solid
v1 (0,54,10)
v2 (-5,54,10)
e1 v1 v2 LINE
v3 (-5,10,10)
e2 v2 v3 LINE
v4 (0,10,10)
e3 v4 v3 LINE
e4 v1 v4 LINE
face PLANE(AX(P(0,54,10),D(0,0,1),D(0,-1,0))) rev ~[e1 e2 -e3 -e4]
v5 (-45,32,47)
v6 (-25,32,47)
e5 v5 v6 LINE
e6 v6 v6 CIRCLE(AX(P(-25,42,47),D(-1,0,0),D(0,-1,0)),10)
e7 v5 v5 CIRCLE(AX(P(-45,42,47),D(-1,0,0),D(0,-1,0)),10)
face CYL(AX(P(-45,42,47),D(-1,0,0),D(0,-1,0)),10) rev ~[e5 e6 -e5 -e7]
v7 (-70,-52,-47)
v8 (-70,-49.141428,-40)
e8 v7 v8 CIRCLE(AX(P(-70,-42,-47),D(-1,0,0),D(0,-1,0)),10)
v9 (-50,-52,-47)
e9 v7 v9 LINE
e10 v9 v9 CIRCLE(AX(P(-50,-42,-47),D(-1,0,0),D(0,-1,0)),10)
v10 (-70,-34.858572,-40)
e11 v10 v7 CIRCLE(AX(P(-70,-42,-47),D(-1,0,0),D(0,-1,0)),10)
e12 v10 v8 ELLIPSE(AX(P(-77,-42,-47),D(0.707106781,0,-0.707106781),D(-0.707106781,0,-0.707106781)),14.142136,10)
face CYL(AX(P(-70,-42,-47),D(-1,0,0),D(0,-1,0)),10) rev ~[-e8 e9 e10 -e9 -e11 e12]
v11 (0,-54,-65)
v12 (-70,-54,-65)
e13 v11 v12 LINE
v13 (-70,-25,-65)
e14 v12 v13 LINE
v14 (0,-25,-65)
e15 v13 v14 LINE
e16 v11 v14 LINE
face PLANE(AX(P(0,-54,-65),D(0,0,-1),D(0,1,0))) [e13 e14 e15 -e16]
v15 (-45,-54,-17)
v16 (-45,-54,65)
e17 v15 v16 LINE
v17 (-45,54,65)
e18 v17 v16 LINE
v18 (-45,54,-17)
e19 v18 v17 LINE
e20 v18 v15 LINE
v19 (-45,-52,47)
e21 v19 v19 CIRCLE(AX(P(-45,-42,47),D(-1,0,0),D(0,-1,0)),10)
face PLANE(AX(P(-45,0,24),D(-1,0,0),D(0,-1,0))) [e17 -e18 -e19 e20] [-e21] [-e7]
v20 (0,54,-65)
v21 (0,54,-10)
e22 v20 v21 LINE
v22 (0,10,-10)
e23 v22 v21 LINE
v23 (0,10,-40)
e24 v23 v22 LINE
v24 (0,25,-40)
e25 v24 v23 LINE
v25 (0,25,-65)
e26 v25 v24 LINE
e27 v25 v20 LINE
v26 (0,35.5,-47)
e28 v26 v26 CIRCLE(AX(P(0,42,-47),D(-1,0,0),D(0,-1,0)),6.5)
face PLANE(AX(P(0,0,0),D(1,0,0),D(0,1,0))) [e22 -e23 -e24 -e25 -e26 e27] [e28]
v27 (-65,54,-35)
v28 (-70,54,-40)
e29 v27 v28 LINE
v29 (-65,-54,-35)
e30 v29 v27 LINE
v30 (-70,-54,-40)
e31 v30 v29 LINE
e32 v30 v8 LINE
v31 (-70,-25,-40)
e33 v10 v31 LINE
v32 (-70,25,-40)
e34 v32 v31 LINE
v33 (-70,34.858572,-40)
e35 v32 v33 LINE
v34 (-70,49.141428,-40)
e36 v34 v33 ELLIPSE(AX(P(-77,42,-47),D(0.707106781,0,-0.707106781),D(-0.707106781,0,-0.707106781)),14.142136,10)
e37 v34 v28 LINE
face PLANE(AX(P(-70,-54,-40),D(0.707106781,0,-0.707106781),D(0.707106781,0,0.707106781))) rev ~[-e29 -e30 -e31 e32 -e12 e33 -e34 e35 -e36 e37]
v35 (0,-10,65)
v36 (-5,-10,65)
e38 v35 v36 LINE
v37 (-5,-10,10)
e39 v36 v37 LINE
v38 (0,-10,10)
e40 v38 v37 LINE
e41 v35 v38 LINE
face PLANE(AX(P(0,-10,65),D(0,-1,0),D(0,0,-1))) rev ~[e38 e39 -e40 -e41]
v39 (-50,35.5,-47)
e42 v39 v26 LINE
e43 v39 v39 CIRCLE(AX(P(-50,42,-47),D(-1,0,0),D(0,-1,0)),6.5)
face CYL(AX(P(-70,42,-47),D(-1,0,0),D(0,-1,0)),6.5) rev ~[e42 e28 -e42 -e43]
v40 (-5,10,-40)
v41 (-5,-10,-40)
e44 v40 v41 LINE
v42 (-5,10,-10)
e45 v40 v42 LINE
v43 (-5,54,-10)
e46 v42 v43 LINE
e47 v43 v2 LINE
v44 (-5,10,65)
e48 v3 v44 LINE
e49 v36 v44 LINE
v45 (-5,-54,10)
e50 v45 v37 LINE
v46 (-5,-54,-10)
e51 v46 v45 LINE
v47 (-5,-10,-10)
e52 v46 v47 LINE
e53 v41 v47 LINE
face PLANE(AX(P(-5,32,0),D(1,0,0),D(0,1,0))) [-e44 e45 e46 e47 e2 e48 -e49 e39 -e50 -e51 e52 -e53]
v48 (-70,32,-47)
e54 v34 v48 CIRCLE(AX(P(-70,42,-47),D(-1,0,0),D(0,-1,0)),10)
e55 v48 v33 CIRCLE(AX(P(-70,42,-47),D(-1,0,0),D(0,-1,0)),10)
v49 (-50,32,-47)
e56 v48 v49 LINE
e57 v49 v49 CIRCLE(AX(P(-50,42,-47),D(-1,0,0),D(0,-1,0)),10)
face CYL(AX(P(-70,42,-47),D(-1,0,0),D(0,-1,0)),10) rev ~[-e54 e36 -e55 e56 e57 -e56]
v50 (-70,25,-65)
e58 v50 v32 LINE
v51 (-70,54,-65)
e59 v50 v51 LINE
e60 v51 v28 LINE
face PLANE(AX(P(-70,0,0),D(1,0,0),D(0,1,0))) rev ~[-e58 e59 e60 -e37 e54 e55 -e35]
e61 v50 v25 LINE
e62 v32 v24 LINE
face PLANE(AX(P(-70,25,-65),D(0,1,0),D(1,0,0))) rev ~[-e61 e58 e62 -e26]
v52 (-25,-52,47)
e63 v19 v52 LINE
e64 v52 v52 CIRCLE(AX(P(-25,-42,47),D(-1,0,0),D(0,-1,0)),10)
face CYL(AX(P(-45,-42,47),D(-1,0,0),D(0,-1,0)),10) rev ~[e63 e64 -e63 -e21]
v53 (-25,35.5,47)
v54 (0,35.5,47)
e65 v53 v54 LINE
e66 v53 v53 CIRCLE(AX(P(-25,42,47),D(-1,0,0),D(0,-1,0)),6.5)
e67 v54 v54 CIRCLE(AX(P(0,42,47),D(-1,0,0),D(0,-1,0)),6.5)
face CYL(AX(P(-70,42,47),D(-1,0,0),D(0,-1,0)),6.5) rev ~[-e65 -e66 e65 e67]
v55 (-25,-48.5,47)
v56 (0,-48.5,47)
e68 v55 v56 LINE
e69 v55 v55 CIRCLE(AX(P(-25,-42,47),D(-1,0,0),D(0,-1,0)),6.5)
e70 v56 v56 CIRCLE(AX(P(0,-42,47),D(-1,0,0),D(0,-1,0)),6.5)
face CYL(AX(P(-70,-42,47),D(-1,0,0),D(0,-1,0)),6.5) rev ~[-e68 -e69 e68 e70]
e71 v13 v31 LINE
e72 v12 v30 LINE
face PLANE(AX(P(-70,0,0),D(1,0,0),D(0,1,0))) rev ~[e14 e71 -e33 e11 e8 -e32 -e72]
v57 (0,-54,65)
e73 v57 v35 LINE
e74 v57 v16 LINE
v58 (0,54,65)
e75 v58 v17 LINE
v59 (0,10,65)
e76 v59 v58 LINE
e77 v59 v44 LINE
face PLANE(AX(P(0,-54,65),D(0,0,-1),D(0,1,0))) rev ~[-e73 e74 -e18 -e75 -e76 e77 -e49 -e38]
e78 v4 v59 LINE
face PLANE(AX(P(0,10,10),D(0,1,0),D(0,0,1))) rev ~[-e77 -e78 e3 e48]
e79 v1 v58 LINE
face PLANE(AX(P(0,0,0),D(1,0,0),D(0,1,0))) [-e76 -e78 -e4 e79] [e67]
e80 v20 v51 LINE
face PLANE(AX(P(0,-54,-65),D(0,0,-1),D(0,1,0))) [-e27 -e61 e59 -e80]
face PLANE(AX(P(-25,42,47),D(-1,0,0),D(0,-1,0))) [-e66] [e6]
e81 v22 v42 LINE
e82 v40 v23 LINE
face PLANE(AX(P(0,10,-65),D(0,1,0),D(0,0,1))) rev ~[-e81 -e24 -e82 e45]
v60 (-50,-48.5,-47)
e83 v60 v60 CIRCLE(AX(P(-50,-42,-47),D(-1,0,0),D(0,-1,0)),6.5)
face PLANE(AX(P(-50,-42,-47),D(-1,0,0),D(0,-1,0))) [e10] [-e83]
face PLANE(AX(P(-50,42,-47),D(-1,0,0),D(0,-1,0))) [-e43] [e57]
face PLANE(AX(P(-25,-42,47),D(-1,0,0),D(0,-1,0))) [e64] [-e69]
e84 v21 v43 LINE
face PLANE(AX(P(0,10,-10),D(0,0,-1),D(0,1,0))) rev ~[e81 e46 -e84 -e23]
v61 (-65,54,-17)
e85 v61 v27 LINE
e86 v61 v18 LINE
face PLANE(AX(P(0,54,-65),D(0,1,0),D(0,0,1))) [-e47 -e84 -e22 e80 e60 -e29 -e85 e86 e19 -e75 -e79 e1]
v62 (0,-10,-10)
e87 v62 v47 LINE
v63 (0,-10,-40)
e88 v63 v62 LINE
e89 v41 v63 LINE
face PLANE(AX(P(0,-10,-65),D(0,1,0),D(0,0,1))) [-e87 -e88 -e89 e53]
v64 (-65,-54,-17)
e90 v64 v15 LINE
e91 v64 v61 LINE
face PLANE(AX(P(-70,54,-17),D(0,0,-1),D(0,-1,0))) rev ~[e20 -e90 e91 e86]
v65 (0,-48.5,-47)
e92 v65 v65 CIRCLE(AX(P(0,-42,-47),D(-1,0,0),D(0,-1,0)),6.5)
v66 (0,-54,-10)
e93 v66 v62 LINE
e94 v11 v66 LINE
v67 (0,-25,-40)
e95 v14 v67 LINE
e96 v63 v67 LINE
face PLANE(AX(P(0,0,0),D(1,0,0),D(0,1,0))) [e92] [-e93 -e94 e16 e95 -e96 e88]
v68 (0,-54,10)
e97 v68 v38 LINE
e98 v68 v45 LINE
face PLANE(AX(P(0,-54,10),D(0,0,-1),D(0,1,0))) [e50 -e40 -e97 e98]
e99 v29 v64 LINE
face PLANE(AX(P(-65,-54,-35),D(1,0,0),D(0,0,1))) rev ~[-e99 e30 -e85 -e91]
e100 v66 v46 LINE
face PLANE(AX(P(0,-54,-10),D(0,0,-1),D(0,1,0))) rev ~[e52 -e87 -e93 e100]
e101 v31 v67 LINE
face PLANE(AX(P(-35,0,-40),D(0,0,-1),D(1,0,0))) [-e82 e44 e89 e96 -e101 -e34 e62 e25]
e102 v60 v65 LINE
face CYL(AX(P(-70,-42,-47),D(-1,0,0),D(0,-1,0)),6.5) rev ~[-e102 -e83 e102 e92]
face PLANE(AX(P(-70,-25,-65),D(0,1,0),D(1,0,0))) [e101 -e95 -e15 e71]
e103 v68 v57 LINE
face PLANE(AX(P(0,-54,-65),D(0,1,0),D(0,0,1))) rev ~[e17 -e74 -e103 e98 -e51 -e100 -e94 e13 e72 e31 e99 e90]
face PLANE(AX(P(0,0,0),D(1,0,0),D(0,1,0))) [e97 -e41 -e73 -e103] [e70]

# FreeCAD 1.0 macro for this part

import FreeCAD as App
import Part
import Sketcher

doc = App.newDocument("Part")
body = doc.addObject("PartDesign::Body", "Body")

sketch1 = doc.addObject("Sketcher::SketchObject", "Sketch")
body.addObject(sketch1)
sketch1.AttachmentSupport = (doc.YZ_Plane, [""])
sketch1.MapMode = "FlatFace"
sketch1.addGeometry([
    Part.LineSegment(App.Vector(-54, 65, 0), App.Vector(-54, -65, 0)),
    Part.LineSegment(App.Vector(-54, -65, 0), App.Vector(54, -65, 0)),
    Part.LineSegment(App.Vector(54, -65, 0), App.Vector(54, 65, 0)),
    Part.LineSegment(App.Vector(54, 65, 0), App.Vector(-54, 65, 0)),
], False)
sketch1.addConstraint([
    Sketcher.Constraint("Coincident", 0, 2, 1, 1),
    Sketcher.Constraint("Coincident", 1, 2, 2, 1),
    Sketcher.Constraint("Coincident", 2, 2, 3, 1),
    Sketcher.Constraint("Coincident", 3, 2, 0, 1),
    Sketcher.Constraint("Vertical", 0),
    Sketcher.Constraint("Horizontal", 1),
    Sketcher.Constraint("Vertical", 2),
    Sketcher.Constraint("Horizontal", 3),
    Sketcher.Constraint("Symmetric", 0, 2, 2, 2, -1, 1),
    Sketcher.Constraint("DistanceX", 1, 1, 1, 2, 108.0),
    Sketcher.Constraint("DistanceY", 0, 2, 0, 1, 130.0),
])
pad1 = doc.addObject("PartDesign::Pad", "Pad")
body.addObject(pad1)
pad1.Profile = sketch1
pad1.Length = 70
pad1.Reversed = True

sketch2 = doc.addObject("Sketcher::SketchObject", "Sketch001")
body.addObject(sketch2)
sketch2.AttachmentSupport = (doc.YZ_Plane, [""])
sketch2.MapMode = "FlatFace"
sketch2.AttachmentOffset = App.Placement(App.Vector(0, 0, -70), App.Rotation())
sketch2.addGeometry([
    Part.Circle(App.Vector(42, 47, 0), App.Vector(0, 0, 1), 6),
    Part.Circle(App.Vector(-42, 47, 0), App.Vector(0, 0, 1), 6),
    Part.Circle(App.Vector(42, -47, 0), App.Vector(0, 0, 1), 6),
    Part.Circle(App.Vector(-42, -47, 0), App.Vector(0, 0, 1), 6),
], False)
sketch2.addConstraint([
    Sketcher.Constraint("Equal", 0, 1),
    Sketcher.Constraint("Equal", 1, 2),
    Sketcher.Constraint("Equal", 2, 3),
    Sketcher.Constraint("Symmetric", 1, 3, 2, 3, -1, 1),
    Sketcher.Constraint("Symmetric", 0, 3, 3, 3, -1, 1),
    Sketcher.Constraint("Symmetric", 0, 3, 1, 3, -2),
    Sketcher.Constraint("Diameter", 0, 13.0),
    Sketcher.Constraint("DistanceX", -1, 1, 0, 3, 42.0),
    Sketcher.Constraint("DistanceY", -1, 1, 0, 3, 47.0),
])
pocket1 = doc.addObject("PartDesign::Pocket", "Pocket")
body.addObject(pocket1)
pocket1.Profile = sketch2
pocket1.Type = "ThroughAll"
pocket1.Reversed = True

sketch3 = doc.addObject("Sketcher::SketchObject", "Sketch002")
body.addObject(sketch3)
sketch3.AttachmentSupport = (doc.XY_Plane, [""])
sketch3.MapMode = "FlatFace"
sketch3.AttachmentOffset = App.Placement(App.Vector(0, 0, -65), App.Rotation())
sketch3.addGeometry([
    Part.LineSegment(App.Vector(-70, -25, 0), App.Vector(-70, 25, 0)),
    Part.LineSegment(App.Vector(-70, 25, 0), App.Vector(0, 25, 0)),
    Part.LineSegment(App.Vector(0, 25, 0), App.Vector(0, -25, 0)),
    Part.LineSegment(App.Vector(0, -25, 0), App.Vector(-70, -25, 0)),
], False)
sketch3.addConstraint([
    Sketcher.Constraint("Coincident", 0, 2, 1, 1),
    Sketcher.Constraint("Coincident", 1, 2, 2, 1),
    Sketcher.Constraint("Coincident", 2, 2, 3, 1),
    Sketcher.Constraint("Coincident", 3, 2, 0, 1),
    Sketcher.Constraint("Vertical", 0),
    Sketcher.Constraint("Horizontal", 1),
    Sketcher.Constraint("Vertical", 2),
    Sketcher.Constraint("Horizontal", 3),
    Sketcher.Constraint("Symmetric", 1, 2, 2, 2, -1, 1),
    Sketcher.Constraint("DistanceX", 1, 1, 1, 2, 70.0),
    Sketcher.Constraint("DistanceY", 0, 1, 0, 2, 50.0),
])
pocket2 = doc.addObject("PartDesign::Pocket", "Pocket001")
body.addObject(pocket2)
pocket2.Profile = sketch3
pocket2.Length = 25
pocket2.Reversed = True

sketch4 = doc.addObject("Sketcher::SketchObject", "Sketch003")
body.addObject(sketch4)
sketch4.AttachmentSupport = (doc.YZ_Plane, [""])
sketch4.MapMode = "FlatFace"
sketch4.AttachmentOffset = App.Placement(App.Vector(0, 0, -70), App.Rotation())
sketch4.addGeometry([
    Part.LineSegment(App.Vector(54, 65, 0), App.Vector(54, -17, 0)),
    Part.LineSegment(App.Vector(54, -17, 0), App.Vector(-54, -17, 0)),
    Part.LineSegment(App.Vector(-54, -17, 0), App.Vector(-54, 65, 0)),
    Part.LineSegment(App.Vector(-54, 65, 0), App.Vector(54, 65, 0)),
], False)
sketch4.addConstraint([
    Sketcher.Constraint("Coincident", 0, 2, 1, 1),
    Sketcher.Constraint("Coincident", 1, 2, 2, 1),
    Sketcher.Constraint("Coincident", 2, 2, 3, 1),
    Sketcher.Constraint("Coincident", 3, 2, 0, 1),
    Sketcher.Constraint("Vertical", 0),
    Sketcher.Constraint("Horizontal", 1),
    Sketcher.Constraint("Vertical", 2),
    Sketcher.Constraint("Horizontal", 3),
    Sketcher.Constraint("DistanceX", 1, 2, 1, 1, 108.0),
    Sketcher.Constraint("DistanceY", 0, 2, 0, 1, 82.0),
    Sketcher.Constraint("DistanceX", -1, 1, 0, 2, 54.0),
    Sketcher.Constraint("DistanceY", 0, 2, -1, 1, 17.0),
])
pocket3 = doc.addObject("PartDesign::Pocket", "Pocket002")
body.addObject(pocket3)
pocket3.Profile = sketch4
pocket3.Length = 25
pocket3.Reversed = True

sketch5 = doc.addObject("Sketcher::SketchObject", "Sketch004")
body.addObject(sketch5)
sketch5.AttachmentSupport = (doc.XZ_Plane, [""])
sketch5.MapMode = "FlatFace"
sketch5.AttachmentOffset = App.Placement(App.Vector(0, 0, 54), App.Rotation())
sketch5.addGeometry([
    Part.LineSegment(App.Vector(-65, -35, 0), App.Vector(-65, -17, 0)),
    Part.LineSegment(App.Vector(-65, -17, 0), App.Vector(-70, -17, 0)),
    Part.LineSegment(App.Vector(-70, -17, 0), App.Vector(-70, -40, 0)),
    Part.LineSegment(App.Vector(-70, -40, 0), App.Vector(-65, -35, 0)),
], False)
sketch5.addConstraint([
    Sketcher.Constraint("Coincident", 0, 2, 1, 1),
    Sketcher.Constraint("Coincident", 1, 2, 2, 1),
    Sketcher.Constraint("Coincident", 2, 2, 3, 1),
    Sketcher.Constraint("Coincident", 3, 2, 0, 1),
    Sketcher.Constraint("Vertical", 0),
    Sketcher.Constraint("Horizontal", 1),
    Sketcher.Constraint("Vertical", 2),
    Sketcher.Constraint("DistanceX", 1, 2, 1, 1, 5.0),
    Sketcher.Constraint("DistanceY", 0, 1, 0, 2, 18.0),
    Sketcher.Constraint("DistanceY", 2, 2, 2, 1, 23.0),
    Sketcher.Constraint("DistanceX", 0, 2, -1, 1, 65.0),
    Sketcher.Constraint("DistanceY", 0, 2, -1, 1, 17.0),
])
pocket4 = doc.addObject("PartDesign::Pocket", "Pocket003")
body.addObject(pocket4)
pocket4.Profile = sketch5
pocket4.Type = "ThroughAll"

sketch6 = doc.addObject("Sketcher::SketchObject", "Sketch005")
body.addObject(sketch6)
sketch6.AttachmentSupport = (doc.YZ_Plane, [""])
sketch6.MapMode = "FlatFace"
sketch6.AttachmentOffset = App.Placement(App.Vector(0, 0, -70), App.Rotation())
sketch6.addGeometry([
    Part.Circle(App.Vector(42, -47, 0), App.Vector(0, 0, 1), 10),
    Part.Circle(App.Vector(-42, -47, 0), App.Vector(0, 0, 1), 10),
], False)
sketch6.addConstraint([
    Sketcher.Constraint("Equal", 0, 1),
    Sketcher.Constraint("Symmetric", 0, 3, 1, 3, -2),
    Sketcher.Constraint("Diameter", 0, 20.0),
    Sketcher.Constraint("DistanceX", -1, 1, 0, 3, 42.0),
    Sketcher.Constraint("DistanceY", 0, 3, -1, 1, 47.0),
])
pocket5 = doc.addObject("PartDesign::Pocket", "Pocket004")
body.addObject(pocket5)
pocket5.Profile = sketch6
pocket5.Length = 20
pocket5.Reversed = True

sketch7 = doc.addObject("Sketcher::SketchObject", "Sketch006")
body.addObject(sketch7)
sketch7.AttachmentSupport = (doc.YZ_Plane, [""])
sketch7.MapMode = "FlatFace"
sketch7.AttachmentOffset = App.Placement(App.Vector(0, 0, -45), App.Rotation())
sketch7.addGeometry([
    Part.Circle(App.Vector(42, 47, 0), App.Vector(0, 0, 1), 10),
    Part.Circle(App.Vector(-42, 47, 0), App.Vector(0, 0, 1), 10),
], False)
sketch7.addConstraint([
    Sketcher.Constraint("Equal", 0, 1),
    Sketcher.Constraint("Symmetric", 0, 3, 1, 3, -2),
    Sketcher.Constraint("Diameter", 0, 20.0),
    Sketcher.Constraint("DistanceX", -1, 1, 0, 3, 42.0),
    Sketcher.Constraint("DistanceY", -1, 1, 0, 3, 47.0),
])
pocket6 = doc.addObject("PartDesign::Pocket", "Pocket005")
body.addObject(pocket6)
pocket6.Profile = sketch7
pocket6.Length = 20
pocket6.Reversed = True

sketch8 = doc.addObject("Sketcher::SketchObject", "Sketch007")
body.addObject(sketch8)
sketch8.AttachmentSupport = (doc.YZ_Plane, [""])
sketch8.MapMode = "FlatFace"
sketch8.addGeometry([
    Part.LineSegment(App.Vector(54, -10, 0), App.Vector(54, 10, 0)),
    Part.LineSegment(App.Vector(54, 10, 0), App.Vector(10, 10, 0)),
    Part.LineSegment(App.Vector(10, 10, 0), App.Vector(10, 65, 0)),
    Part.LineSegment(App.Vector(10, 65, 0), App.Vector(-10, 65, 0)),
    Part.LineSegment(App.Vector(-10, 65, 0), App.Vector(-10, 10, 0)),
    Part.LineSegment(App.Vector(-10, 10, 0), App.Vector(-54, 10, 0)),
    Part.LineSegment(App.Vector(-54, 10, 0), App.Vector(-54, -10, 0)),
    Part.LineSegment(App.Vector(-54, -10, 0), App.Vector(-10, -10, 0)),
    Part.LineSegment(App.Vector(-10, -10, 0), App.Vector(-10, -65, 0)),
    Part.LineSegment(App.Vector(-10, -65, 0), App.Vector(10, -65, 0)),
    Part.LineSegment(App.Vector(10, -65, 0), App.Vector(10, -10, 0)),
    Part.LineSegment(App.Vector(10, -10, 0), App.Vector(54, -10, 0)),
], False)
sketch8.addConstraint([
    Sketcher.Constraint("Coincident", 0, 2, 1, 1),
    Sketcher.Constraint("Coincident", 1, 2, 2, 1),
    Sketcher.Constraint("Coincident", 2, 2, 3, 1),
    Sketcher.Constraint("Coincident", 3, 2, 4, 1),
    Sketcher.Constraint("Coincident", 4, 2, 5, 1),
    Sketcher.Constraint("Coincident", 5, 2, 6, 1),
    Sketcher.Constraint("Coincident", 6, 2, 7, 1),
    Sketcher.Constraint("Coincident", 7, 2, 8, 1),
    Sketcher.Constraint("Coincident", 8, 2, 9, 1),
    Sketcher.Constraint("Coincident", 9, 2, 10, 1),
    Sketcher.Constraint("Coincident", 10, 2, 11, 1),
    Sketcher.Constraint("Coincident", 11, 2, 0, 1),
    Sketcher.Constraint("Vertical", 0),
    Sketcher.Constraint("Horizontal", 1),
    Sketcher.Constraint("Vertical", 2),
    Sketcher.Constraint("Horizontal", 3),
    Sketcher.Constraint("Vertical", 4),
    Sketcher.Constraint("Horizontal", 5),
    Sketcher.Constraint("Vertical", 6),
    Sketcher.Constraint("Horizontal", 7),
    Sketcher.Constraint("Vertical", 8),
    Sketcher.Constraint("Horizontal", 9),
    Sketcher.Constraint("Vertical", 10),
    Sketcher.Constraint("Horizontal", 11),
    Sketcher.Constraint("Symmetric", 0, 2, 6, 2, -1, 1),
    Sketcher.Constraint("Symmetric", 2, 2, 8, 2, -1, 1),
    Sketcher.Constraint("Symmetric", 4, 2, 10, 2, -1, 1),
    Sketcher.Constraint("Symmetric", 1, 2, 4, 2, -2),
    Sketcher.Constraint("Equal", 9, 0),
    Sketcher.Constraint("DistanceX", 1, 2, 1, 1, 44.0),
    Sketcher.Constraint("DistanceX", 3, 2, 3, 1, 20.0),
    Sketcher.Constraint("DistanceY", 2, 1, 2, 2, 55.0),
])
pocket7 = doc.addObject("PartDesign::Pocket", "Pocket006")
body.addObject(pocket7)
pocket7.Profile = sketch8
pocket7.Length = 5

doc.recompute()
